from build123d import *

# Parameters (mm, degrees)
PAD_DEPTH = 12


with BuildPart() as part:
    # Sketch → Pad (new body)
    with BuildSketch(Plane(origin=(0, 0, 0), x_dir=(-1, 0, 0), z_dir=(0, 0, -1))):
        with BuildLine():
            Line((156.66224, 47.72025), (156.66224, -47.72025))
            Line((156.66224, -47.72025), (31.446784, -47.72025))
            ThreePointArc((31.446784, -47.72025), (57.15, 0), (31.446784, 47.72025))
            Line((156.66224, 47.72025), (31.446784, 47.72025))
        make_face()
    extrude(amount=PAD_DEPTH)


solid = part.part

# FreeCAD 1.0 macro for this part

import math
import FreeCAD as App
import Part
import Sketcher
from FreeCAD import Vector
Q = App.Units.Quantity

doc = App.newDocument("Part")
params = doc.addObject("Spreadsheet::Sheet", "Params")
for row, (alias, value) in enumerate([
    ("sketch1_radius", "57.15 mm"),
    ("pad1_length", "12 mm"),
], start=1):
    params.set(f"A{row}", alias)
    params.set(f"B{row}", "=" + value)
    params.setAlias(f"B{row}", alias)

body = doc.addObject("PartDesign::Body", "Body")

sketch1 = body.newObject("Sketcher::SketchObject", "Sketch")
sketch1.AttachmentSupport = (doc.getObject("XY_Plane"), [""])
sketch1.MapMode = "FlatFace"
sketch1.addGeometry([
    Part.LineSegment(Vector(-156.66224, -47.72025, 0), Vector(-156.66224, 47.72025, 0)),
    Part.LineSegment(Vector(-156.66224, 47.72025, 0), Vector(-31.446784, 47.72025, 0)),
    Part.ArcOfCircle(Part.Circle(Vector(0, 0, 0), Vector(0, 0, 1), 57.15), math.radians(123.384161), math.radians(236.615839)),
    Part.LineSegment(Vector(-31.446784, -47.72025, 0), Vector(-156.66224, -47.72025, 0)),
], False)
sketch1.addConstraint([
    Sketcher.Constraint("Coincident", 0, 2, 1, 1),
    Sketcher.Constraint("Coincident", 1, 2, 2, 1),
    Sketcher.Constraint("Coincident", 2, 2, 3, 1),
    Sketcher.Constraint("Coincident", 3, 2, 0, 1),
    Sketcher.Constraint("Vertical", 0),
    Sketcher.Constraint("Horizontal", 1),
    Sketcher.Constraint("Horizontal", 3),
    Sketcher.Constraint("Coincident", 2, 3, -1, 1),
    Sketcher.Constraint("Vertical", 1, 2, 2, 2),
    Sketcher.Constraint("Radius", 2, Q("57.15 mm")),
    Sketcher.Constraint("DistanceY", 0, 1, 0, 2, Q("95.4405 mm")),
    Sketcher.Constraint("DistanceX", 1, 1, 1, 2, Q("125.215456 mm")),
])
sketch1.setExpression("Constraints[9]", "Params.sketch1_radius")
pad1 = body.newObject("PartDesign::Pad", "Pad")
pad1.Profile = sketch1
pad1.setExpression("Length", "Params.pad1_length")
pad1.Reversed = True

doc.recompute()
